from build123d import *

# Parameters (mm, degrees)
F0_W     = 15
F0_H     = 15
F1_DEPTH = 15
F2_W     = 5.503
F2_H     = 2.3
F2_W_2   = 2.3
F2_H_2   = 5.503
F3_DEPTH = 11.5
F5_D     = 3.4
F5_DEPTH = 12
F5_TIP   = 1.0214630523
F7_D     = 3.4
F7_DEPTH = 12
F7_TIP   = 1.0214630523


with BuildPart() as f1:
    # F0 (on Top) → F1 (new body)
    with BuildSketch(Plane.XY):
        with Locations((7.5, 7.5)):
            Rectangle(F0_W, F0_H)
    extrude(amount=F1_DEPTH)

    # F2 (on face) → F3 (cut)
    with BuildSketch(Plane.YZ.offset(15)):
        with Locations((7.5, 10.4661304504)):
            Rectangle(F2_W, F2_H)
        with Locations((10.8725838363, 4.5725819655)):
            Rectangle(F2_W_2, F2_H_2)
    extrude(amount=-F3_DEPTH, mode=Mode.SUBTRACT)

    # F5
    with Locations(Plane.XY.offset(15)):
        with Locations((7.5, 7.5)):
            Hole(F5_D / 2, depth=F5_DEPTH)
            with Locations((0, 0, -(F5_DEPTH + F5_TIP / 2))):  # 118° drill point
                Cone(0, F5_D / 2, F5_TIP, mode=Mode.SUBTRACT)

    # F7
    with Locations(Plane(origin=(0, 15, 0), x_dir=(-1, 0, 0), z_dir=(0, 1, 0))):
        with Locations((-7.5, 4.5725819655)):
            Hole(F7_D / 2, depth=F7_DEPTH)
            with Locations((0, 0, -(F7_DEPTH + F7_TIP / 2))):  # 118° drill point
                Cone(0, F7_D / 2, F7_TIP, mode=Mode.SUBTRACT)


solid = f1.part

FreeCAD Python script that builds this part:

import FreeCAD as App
import Part
import Sketcher


def add_polygon(sketch, points):
    """Adds a closed chain of lines whose ends are joined by coincident constraints."""
    first, n = sketch.GeometryCount, len(points)
    for a, b in zip(points, points[1:] + points[:1]):
        sketch.addGeometry(Part.LineSegment(App.Vector(*a, 0), App.Vector(*b, 0)), False)
    for i in range(n):
        sketch.addConstraint(Sketcher.Constraint("Coincident", first + i, 2, first + (i + 1) % n, 1))

doc = App.newDocument("Part")
body = doc.addObject("PartDesign::Body", "Body")

# Sketch on XY plane
sketch1 = doc.addObject("Sketcher::SketchObject", "Sketch")
body.addObject(sketch1)
sketch1.AttachmentSupport = (doc.XY_Plane, [""])
sketch1.MapMode = "FlatFace"
add_polygon(sketch1, [(0, 15), (0, 0), (15, 0), (15, 15)])  # lines 0-3
sketch1.addConstraint(Sketcher.Constraint("Vertical", 0))
sketch1.addConstraint(Sketcher.Constraint("Horizontal", 1))
sketch1.addConstraint(Sketcher.Constraint("Vertical", 2))
sketch1.addConstraint(Sketcher.Constraint("Horizontal", 3))
sketch1.addConstraint(Sketcher.Constraint("Coincident", 0, 2, -1, 1))
sketch1.addConstraint(Sketcher.Constraint("Equal", 3, 0))
sketch1.addConstraint(Sketcher.Constraint("DistanceX", 1, 1, 1, 2, 15.0))
pad1 = doc.addObject("PartDesign::Pad", "Pad")
body.addObject(pad1)
pad1.Profile = sketch1
pad1.Length = 15

# Sketch on YZ plane
sketch2 = doc.addObject("Sketcher::SketchObject", "Sketch001")
body.addObject(sketch2)
sketch2.AttachmentSupport = (doc.YZ_Plane, [""])
sketch2.MapMode = "FlatFace"
sketch2.AttachmentOffset = App.Placement(App.Vector(0, 0, 15), App.Rotation())
add_polygon(sketch2, [(4.7485, 11.61613), (4.7485, 9.31613), (10.2515, 9.31613), (10.2515, 11.61613)])  # lines 0-3
add_polygon(sketch2, [(9.722584, 7.324082), (9.722584, 1.821082), (12.022584, 1.821082), (12.022584, 7.324082)])  # lines 4-7
sketch2.addConstraint(Sketcher.Constraint("Vertical", 0))
sketch2.addConstraint(Sketcher.Constraint("Horizontal", 1))
sketch2.addConstraint(Sketcher.Constraint("Vertical", 2))
sketch2.addConstraint(Sketcher.Constraint("Horizontal", 3))
sketch2.addConstraint(Sketcher.Constraint("Vertical", 4))
sketch2.addConstraint(Sketcher.Constraint("Horizontal", 5))
sketch2.addConstraint(Sketcher.Constraint("Vertical", 6))
sketch2.addConstraint(Sketcher.Constraint("Horizontal", 7))
sketch2.addConstraint(Sketcher.Constraint("Equal", 7, 0))
sketch2.addConstraint(Sketcher.Constraint("Equal", 3, 4))
sketch2.addConstraint(Sketcher.Constraint("DistanceX", 5, 1, 5, 2, 2.3))
sketch2.addConstraint(Sketcher.Constraint("DistanceX", 1, 1, 1, 2, 5.503))
sketch2.addConstraint(Sketcher.Constraint("DistanceX", -1, 1, 0, 2, 4.7485))
sketch2.addConstraint(Sketcher.Constraint("DistanceY", -1, 1, 0, 2, 9.31613))
sketch2.addConstraint(Sketcher.Constraint("DistanceY", -1, 1, 4, 2, 1.821082))
sketch2.addConstraint(Sketcher.Constraint("DistanceX", -1, 1, 4, 2, 9.722584))
pocket1 = doc.addObject("PartDesign::Pocket", "Pocket")
body.addObject(pocket1)
pocket1.Profile = sketch2
pocket1.Length = 11.5

# Sketch on XY plane
sketch3 = doc.addObject("Sketcher::SketchObject", "Sketch002")
body.addObject(sketch3)
sketch3.AttachmentSupport = (doc.XY_Plane, [""])
sketch3.MapMode = "FlatFace"
sketch3.AttachmentOffset = App.Placement(App.Vector(0, 0, 15), App.Rotation())
sketch3.addGeometry(Part.Circle(App.Vector(7.5, 7.5, 0), App.Vector(0, 0, 1), 1.7), False)
sketch3.addConstraint(Sketcher.Constraint("Diameter", 0, 3.4))
sketch3.addConstraint(Sketcher.Constraint("DistanceX", -1, 1, 0, 3, 7.5))
sketch3.addConstraint(Sketcher.Constraint("DistanceY", -1, 1, 0, 3, 7.5))
doc.recompute()
hole = doc.addObject("PartDesign::Hole", "Hole")
body.addObject(hole)
hole.Profile = sketch3
hole.ThreadType = "None"
hole.Diameter = 3.4
hole.DepthType = "Dimension"
hole.Depth = 12
hole.DrillPoint = "Angled"
hole.DrillPointAngle = 118

# Sketch on XZ plane
sketch4 = doc.addObject("Sketcher::SketchObject", "Sketch003")
body.addObject(sketch4)
sketch4.AttachmentSupport = (doc.XZ_Plane, [""])
sketch4.MapMode = "FlatFace"
sketch4.AttachmentOffset = App.Placement(App.Vector(0, 0, -15), App.Rotation())
sketch4.addGeometry(Part.Circle(App.Vector(7.5, 4.572582, 0), App.Vector(0, 0, 1), 1.7), False)
sketch4.addConstraint(Sketcher.Constraint("Diameter", 0, 3.4))
sketch4.addConstraint(Sketcher.Constraint("DistanceX", -1, 1, 0, 3, 7.5))
sketch4.addConstraint(Sketcher.Constraint("DistanceY", -1, 1, 0, 3, 4.572582))
doc.recompute()
hole2 = doc.addObject("PartDesign::Hole", "Hole001")
body.addObject(hole2)
hole2.Profile = sketch4
hole2.ThreadType = "None"
hole2.Diameter = 3.4
hole2.DepthType = "Dimension"
hole2.Depth = 12
hole2.DrillPoint = "Angled"
hole2.DrillPointAngle = 118
hole2.Reversed = True

doc.recompute()
